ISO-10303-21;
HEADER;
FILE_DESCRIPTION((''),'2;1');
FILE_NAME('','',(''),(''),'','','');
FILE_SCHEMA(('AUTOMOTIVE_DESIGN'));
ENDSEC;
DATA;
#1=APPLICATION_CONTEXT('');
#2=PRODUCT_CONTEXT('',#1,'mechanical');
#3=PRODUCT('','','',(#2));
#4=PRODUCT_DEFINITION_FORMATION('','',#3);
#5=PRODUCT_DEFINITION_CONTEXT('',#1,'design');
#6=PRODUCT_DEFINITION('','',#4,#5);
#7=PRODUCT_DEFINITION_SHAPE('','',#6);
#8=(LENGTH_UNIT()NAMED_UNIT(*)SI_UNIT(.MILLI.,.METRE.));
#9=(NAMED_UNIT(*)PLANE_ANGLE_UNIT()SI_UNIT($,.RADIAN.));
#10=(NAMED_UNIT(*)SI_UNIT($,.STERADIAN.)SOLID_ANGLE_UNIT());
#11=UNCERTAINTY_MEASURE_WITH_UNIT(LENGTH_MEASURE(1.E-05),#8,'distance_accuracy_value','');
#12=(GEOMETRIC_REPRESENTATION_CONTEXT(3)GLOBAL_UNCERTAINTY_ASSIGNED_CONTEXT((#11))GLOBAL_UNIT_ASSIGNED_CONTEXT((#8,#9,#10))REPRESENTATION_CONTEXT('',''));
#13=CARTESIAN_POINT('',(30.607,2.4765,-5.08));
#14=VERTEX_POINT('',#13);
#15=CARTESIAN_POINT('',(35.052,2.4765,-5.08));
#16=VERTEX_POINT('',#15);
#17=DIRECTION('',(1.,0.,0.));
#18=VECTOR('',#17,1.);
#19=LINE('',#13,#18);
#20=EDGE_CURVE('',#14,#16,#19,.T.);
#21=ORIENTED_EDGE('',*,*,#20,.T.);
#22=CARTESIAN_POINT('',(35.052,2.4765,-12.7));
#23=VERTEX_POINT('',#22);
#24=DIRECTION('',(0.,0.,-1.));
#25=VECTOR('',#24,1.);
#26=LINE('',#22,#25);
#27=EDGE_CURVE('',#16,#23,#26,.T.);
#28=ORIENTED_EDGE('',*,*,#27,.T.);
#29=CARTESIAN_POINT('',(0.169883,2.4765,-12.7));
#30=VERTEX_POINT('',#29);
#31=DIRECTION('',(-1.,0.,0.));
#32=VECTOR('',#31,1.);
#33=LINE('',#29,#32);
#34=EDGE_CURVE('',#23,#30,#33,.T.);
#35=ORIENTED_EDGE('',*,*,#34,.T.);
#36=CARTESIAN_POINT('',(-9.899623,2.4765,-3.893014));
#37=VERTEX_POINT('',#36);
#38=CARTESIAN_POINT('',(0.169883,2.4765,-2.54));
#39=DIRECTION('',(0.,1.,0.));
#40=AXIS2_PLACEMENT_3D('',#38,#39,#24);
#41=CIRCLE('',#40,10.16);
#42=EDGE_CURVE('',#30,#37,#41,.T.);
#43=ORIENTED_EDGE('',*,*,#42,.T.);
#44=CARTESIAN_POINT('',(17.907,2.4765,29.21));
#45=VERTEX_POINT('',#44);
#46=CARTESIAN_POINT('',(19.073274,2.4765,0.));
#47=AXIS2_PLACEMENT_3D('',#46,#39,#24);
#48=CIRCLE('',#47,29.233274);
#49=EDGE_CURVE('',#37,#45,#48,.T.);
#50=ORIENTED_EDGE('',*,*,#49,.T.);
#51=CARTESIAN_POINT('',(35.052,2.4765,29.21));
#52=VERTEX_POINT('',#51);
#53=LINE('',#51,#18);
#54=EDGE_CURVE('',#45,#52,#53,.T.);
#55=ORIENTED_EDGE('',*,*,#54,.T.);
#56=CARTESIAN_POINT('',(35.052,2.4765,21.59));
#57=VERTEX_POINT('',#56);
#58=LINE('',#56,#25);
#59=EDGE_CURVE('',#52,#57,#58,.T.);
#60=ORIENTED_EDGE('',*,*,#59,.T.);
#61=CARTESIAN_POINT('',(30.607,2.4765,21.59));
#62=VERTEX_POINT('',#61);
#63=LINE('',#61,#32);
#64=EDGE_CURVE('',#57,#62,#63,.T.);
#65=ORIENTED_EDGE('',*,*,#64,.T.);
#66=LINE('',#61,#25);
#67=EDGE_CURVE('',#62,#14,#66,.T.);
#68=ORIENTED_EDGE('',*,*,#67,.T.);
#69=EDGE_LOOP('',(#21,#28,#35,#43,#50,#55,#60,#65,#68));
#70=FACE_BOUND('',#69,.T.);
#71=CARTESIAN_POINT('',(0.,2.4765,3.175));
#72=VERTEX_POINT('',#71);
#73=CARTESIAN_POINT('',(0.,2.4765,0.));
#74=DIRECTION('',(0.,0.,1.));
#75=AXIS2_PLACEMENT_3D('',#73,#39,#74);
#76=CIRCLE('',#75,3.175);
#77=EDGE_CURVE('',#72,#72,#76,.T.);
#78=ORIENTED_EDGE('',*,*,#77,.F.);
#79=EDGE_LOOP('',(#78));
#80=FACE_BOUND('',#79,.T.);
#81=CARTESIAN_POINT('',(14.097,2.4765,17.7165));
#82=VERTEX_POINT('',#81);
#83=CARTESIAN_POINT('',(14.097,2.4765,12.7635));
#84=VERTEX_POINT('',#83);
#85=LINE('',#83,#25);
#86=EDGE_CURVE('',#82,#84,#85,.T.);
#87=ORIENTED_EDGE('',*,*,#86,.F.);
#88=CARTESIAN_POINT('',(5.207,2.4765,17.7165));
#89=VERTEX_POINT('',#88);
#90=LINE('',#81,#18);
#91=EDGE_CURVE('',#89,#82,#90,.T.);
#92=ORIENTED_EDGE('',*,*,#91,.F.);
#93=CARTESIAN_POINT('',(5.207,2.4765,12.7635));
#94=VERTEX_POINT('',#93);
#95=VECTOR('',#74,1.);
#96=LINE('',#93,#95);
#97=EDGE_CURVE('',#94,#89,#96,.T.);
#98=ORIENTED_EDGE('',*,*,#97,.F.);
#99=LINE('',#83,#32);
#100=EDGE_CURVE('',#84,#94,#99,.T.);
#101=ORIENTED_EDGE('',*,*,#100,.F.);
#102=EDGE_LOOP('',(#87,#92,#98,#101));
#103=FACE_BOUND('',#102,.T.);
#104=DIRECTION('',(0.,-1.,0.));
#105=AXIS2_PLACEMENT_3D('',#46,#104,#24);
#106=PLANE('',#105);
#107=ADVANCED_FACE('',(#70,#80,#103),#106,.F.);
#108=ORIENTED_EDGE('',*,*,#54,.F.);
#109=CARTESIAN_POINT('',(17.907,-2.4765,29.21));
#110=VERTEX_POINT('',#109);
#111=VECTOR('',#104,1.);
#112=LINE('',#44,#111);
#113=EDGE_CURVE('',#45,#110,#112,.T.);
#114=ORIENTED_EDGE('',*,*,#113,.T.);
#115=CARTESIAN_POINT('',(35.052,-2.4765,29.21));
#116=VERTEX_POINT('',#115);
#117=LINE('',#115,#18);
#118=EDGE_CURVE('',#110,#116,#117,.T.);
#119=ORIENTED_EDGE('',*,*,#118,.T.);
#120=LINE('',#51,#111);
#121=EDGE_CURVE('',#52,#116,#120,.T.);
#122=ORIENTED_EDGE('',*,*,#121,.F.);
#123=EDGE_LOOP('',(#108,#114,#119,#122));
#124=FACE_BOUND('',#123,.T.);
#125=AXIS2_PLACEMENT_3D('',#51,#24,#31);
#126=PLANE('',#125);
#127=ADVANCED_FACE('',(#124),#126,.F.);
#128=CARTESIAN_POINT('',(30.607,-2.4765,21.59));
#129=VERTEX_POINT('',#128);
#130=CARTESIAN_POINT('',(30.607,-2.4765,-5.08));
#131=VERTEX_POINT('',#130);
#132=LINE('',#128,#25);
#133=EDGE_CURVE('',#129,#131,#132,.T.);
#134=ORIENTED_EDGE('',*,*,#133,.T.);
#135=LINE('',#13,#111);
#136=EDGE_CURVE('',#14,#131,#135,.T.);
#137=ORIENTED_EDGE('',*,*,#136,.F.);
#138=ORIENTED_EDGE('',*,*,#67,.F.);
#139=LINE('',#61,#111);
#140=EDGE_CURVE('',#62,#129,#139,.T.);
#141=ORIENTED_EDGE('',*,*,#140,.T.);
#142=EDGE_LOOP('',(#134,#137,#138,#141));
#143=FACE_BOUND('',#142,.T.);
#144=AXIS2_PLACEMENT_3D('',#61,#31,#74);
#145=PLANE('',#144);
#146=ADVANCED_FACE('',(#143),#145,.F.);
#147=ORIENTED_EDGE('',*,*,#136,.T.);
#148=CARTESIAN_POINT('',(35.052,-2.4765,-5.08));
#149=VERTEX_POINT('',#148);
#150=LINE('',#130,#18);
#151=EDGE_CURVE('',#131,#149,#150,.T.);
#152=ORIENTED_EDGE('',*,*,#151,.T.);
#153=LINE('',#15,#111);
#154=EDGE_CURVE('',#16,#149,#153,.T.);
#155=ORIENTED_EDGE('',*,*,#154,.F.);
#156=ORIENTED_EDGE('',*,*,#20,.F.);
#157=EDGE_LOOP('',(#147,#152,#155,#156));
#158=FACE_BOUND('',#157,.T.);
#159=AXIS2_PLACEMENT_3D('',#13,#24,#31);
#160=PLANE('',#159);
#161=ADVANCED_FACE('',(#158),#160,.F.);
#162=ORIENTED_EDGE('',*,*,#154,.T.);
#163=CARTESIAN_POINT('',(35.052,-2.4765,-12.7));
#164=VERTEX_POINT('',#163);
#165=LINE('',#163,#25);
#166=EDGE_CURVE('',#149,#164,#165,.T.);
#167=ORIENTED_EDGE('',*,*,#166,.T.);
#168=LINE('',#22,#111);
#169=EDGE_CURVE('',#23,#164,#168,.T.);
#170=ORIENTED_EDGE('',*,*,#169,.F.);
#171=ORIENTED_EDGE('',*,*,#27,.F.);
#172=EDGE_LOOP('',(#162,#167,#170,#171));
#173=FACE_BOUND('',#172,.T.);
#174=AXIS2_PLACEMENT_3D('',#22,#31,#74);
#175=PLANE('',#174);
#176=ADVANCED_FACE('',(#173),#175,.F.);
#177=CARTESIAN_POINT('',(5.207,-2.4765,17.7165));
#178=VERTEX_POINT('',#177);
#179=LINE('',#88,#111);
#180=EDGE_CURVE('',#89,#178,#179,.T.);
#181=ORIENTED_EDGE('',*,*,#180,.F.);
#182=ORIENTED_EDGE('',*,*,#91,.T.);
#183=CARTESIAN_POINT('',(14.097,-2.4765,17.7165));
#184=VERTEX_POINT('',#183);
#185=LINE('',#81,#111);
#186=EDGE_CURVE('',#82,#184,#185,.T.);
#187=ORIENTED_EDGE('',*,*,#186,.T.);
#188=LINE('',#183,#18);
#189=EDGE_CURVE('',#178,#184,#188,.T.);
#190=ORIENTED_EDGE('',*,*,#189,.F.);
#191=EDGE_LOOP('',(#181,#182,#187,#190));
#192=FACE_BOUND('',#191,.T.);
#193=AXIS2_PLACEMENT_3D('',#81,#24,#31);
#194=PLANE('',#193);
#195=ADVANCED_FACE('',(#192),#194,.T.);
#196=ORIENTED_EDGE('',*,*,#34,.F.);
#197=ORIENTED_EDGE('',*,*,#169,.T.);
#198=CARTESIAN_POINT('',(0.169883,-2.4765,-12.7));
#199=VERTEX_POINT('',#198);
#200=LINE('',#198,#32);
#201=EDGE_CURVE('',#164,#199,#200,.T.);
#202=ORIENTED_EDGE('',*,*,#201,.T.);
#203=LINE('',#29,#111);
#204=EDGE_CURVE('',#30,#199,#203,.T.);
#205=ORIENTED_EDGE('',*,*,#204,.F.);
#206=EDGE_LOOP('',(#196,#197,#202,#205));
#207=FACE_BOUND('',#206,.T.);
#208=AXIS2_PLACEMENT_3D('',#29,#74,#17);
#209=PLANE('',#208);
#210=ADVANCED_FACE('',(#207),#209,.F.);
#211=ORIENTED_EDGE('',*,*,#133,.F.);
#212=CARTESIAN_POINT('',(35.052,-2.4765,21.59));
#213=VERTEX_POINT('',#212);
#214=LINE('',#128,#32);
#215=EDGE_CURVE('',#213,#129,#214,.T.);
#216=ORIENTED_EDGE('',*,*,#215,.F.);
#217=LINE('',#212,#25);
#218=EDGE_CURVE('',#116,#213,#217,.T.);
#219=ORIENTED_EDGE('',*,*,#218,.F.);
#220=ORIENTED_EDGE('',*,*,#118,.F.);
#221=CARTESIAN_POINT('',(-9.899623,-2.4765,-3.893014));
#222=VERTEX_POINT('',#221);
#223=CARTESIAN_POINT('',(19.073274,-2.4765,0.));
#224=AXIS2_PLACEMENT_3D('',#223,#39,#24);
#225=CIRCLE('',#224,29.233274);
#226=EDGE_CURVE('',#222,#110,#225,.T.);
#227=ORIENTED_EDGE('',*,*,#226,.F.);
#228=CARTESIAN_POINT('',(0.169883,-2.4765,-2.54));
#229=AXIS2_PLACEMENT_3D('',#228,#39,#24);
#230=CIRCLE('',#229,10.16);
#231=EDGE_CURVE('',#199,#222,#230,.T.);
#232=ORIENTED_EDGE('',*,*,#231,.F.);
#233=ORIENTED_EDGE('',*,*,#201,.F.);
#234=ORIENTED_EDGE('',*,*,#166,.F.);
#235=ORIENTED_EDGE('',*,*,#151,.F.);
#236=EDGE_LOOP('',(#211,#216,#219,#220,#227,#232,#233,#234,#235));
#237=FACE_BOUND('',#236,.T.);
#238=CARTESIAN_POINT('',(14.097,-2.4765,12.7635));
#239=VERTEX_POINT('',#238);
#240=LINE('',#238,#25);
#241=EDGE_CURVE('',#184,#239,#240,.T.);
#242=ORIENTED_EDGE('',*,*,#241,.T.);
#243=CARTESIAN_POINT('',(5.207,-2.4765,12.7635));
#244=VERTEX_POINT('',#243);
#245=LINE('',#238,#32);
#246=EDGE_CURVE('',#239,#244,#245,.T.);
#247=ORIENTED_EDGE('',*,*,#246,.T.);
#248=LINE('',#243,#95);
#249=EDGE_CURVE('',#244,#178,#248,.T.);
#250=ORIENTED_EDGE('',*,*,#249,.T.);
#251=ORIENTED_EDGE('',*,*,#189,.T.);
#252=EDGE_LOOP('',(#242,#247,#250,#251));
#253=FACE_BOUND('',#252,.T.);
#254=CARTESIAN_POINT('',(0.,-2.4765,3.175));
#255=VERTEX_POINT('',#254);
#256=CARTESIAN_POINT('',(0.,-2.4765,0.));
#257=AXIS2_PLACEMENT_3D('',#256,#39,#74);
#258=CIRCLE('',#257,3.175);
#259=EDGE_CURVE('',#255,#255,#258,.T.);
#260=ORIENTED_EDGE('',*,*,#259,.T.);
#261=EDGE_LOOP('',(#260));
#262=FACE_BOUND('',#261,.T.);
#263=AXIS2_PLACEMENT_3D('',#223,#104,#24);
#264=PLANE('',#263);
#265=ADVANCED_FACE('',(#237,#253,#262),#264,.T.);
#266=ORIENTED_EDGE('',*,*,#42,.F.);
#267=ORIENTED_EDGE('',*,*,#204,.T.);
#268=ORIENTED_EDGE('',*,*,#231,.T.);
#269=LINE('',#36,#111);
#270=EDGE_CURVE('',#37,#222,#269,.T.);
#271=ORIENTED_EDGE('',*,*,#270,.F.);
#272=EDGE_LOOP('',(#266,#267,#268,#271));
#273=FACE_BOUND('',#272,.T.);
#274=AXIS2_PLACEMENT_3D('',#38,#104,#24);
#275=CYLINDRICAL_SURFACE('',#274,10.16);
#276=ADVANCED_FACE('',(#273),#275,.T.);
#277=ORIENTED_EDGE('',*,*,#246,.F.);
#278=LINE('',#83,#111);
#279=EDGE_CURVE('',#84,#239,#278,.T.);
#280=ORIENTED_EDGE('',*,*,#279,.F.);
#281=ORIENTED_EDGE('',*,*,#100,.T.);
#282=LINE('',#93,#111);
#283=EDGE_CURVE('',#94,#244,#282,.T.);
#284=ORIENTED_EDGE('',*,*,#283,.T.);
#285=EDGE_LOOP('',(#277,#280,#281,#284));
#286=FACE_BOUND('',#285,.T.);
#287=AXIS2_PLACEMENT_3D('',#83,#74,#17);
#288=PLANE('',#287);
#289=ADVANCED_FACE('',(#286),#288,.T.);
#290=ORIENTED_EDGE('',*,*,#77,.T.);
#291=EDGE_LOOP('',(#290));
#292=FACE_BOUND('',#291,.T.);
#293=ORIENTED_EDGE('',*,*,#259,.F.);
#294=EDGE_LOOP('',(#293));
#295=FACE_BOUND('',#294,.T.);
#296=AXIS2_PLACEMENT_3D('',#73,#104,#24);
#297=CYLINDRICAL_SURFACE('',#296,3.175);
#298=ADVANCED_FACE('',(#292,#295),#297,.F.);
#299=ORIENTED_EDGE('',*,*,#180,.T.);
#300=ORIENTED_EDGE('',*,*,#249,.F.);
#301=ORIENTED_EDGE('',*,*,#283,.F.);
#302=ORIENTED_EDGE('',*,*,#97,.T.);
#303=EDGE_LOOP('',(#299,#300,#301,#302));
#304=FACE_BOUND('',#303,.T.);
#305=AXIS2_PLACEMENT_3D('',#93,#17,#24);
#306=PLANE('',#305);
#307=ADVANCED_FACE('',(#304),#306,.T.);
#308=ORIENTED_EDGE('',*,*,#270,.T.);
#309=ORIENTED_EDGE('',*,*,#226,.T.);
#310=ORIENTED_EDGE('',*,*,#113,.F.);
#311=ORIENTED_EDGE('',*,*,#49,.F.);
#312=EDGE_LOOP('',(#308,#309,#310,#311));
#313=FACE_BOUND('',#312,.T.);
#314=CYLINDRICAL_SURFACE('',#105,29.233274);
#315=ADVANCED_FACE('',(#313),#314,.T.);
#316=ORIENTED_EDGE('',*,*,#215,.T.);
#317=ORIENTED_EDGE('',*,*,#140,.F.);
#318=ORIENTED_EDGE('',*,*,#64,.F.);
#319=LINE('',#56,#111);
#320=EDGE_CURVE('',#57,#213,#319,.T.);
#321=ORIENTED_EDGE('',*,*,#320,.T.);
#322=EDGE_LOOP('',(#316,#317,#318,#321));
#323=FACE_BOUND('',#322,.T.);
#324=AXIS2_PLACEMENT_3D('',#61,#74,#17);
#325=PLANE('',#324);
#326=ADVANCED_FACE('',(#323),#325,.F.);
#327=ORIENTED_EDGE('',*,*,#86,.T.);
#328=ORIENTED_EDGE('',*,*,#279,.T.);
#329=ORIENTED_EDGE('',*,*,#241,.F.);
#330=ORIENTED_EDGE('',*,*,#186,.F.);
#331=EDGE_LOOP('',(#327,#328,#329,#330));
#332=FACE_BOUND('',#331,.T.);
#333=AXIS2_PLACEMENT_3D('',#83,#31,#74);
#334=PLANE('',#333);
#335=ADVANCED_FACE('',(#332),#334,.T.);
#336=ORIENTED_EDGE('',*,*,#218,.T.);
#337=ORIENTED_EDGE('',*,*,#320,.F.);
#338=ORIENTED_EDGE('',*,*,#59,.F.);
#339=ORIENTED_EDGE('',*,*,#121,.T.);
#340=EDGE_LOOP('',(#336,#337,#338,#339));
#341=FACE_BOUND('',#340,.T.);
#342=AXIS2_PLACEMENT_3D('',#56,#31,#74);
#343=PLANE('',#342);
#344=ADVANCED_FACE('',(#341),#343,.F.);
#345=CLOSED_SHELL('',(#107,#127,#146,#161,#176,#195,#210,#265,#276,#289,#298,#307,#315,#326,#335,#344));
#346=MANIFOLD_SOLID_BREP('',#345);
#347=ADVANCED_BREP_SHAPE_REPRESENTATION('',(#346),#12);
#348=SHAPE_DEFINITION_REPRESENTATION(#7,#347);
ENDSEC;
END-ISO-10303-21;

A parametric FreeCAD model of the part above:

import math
import FreeCAD as App
import Part
import Sketcher
Q = App.Units.Quantity


def add_polygon(sketch, points):
    """Adds a closed chain of lines whose ends are joined by coincident constraints."""
    first, n = sketch.GeometryCount, len(points)
    for a, b in zip(points, points[1:] + points[:1]):
        sketch.addGeometry(Part.LineSegment(App.Vector(*a, 0), App.Vector(*b, 0)), False)
    for i in range(n):
        sketch.addConstraint(Sketcher.Constraint("Coincident", first + i, 2, first + (i + 1) % n, 1))

doc = App.newDocument("Part")
params = doc.addObject("Spreadsheet::Sheet", "Params")
for row, (alias, value) in enumerate([
    ("sketch1_radius", "0.4 in"),
    ("sketch1_diameter", "0.25 in"),
    ("sketch1_height", "0.3 in"),
    ("sketch1_width", "0.35 in"),
    ("sketch1_height2", "1.05 in"),
    ("pad1_length", "0.195 in"),
], start=1):
    params.set(f"A{row}", alias)
    params.set(f"B{row}", "=" + value)
    params.setAlias(f"B{row}", alias)

body = doc.addObject("PartDesign::Body", "Body")

sketch1 = body.newObject("Sketcher::SketchObject", "Sketch")
sketch1.AttachmentSupport = (doc.getObject("XZ_Plane"), [""])
sketch1.MapMode = "FlatFace"
sketch1.addGeometry(Part.LineSegment(App.Vector(30.6, 21.6, 0), App.Vector(30.6, -5.1, 0)), False)
sketch1.addGeometry(Part.LineSegment(App.Vector(30.6, -5.1, 0), App.Vector(35.1, -5.1, 0)), False)
sketch1.addGeometry(Part.LineSegment(App.Vector(35.1, -5.1, 0), App.Vector(35.1, -12.7, 0)), False)
sketch1.addGeometry(Part.LineSegment(App.Vector(35.1, -12.7, 0), App.Vector(0.2, -12.7, 0)), False)
sketch1.addGeometry(Part.ArcOfCircle(Part.Circle(App.Vector(0.2, -2.5, 0), App.Vector(0, 0, 1), 10.2), math.radians(-172), math.radians(-90)), False)
sketch1.addGeometry(Part.ArcOfCircle(Part.Circle(App.Vector(19.1, 0, 0), App.Vector(0, 0, 1), 29.2), math.radians(92), math.radians(188)), False)
sketch1.addGeometry(Part.LineSegment(App.Vector(17.9, 29.2, 0), App.Vector(35.1, 29.2, 0)), False)
sketch1.addGeometry(Part.LineSegment(App.Vector(35.1, 29.2, 0), App.Vector(35.1, 21.6, 0)), False)
sketch1.addGeometry(Part.LineSegment(App.Vector(35.1, 21.6, 0), App.Vector(30.6, 21.6, 0)), False)
add_polygon(sketch1, [(14.1, 17.7), (5.2, 17.7), (5.2, 12.8), (14.1, 12.8)])
sketch1.addGeometry(Part.Circle(App.Vector(0, 0, 0), App.Vector(0, 0, 1), 3.2), False)
sketch1.addConstraint([
    Sketcher.Constraint("Coincident", 0, 2, 1, 1),
    Sketcher.Constraint("Coincident", 1, 2, 2, 1),
    Sketcher.Constraint("Coincident", 2, 2, 3, 1),
    Sketcher.Constraint("Tangent", 3, 2, 4, 2),
    Sketcher.Constraint("Tangent", 4, 1, 5, 2),
    Sketcher.Constraint("Coincident", 5, 1, 6, 1),
    Sketcher.Constraint("Coincident", 6, 2, 7, 1),
    Sketcher.Constraint("Coincident", 7, 2, 8, 1),
    Sketcher.Constraint("Coincident", 8, 2, 0, 1),
    Sketcher.Constraint("Vertical", 0),
    Sketcher.Constraint("Horizontal", 1),
    Sketcher.Constraint("Vertical", 2),
    Sketcher.Constraint("Horizontal", 3),
    Sketcher.Constraint("Horizontal", 6),
    Sketcher.Constraint("Vertical", 7),
    Sketcher.Constraint("Horizontal", 8),
    Sketcher.Constraint("Horizontal", 9),
    Sketcher.Constraint("Vertical", 10),
    Sketcher.Constraint("Horizontal", 11),
    Sketcher.Constraint("Vertical", 12),
    Sketcher.Constraint("Coincident", 13, 3, -1, 1),
    Sketcher.Constraint("PointOnObject", 5, 3, -1),
    Sketcher.Constraint("Vertical", 2, 2, 6, 2),
    Sketcher.Constraint("Equal", 2, 7),
    Sketcher.Constraint("Radius", 4, Q("0.4 in")),
    Sketcher.Constraint("Diameter", 13, Q("0.25 in")),
    Sketcher.Constraint("DistanceY", 2, 2, 2, 1, Q("0.3 in")),
    Sketcher.Constraint("DistanceX", 9, 2, 8, 2, Q("1 in")),
    Sketcher.Constraint("DistanceX", 9, 2, 9, 1, Q("0.35 in")),
    Sketcher.Constraint("DistanceY", 0, 2, 0, 1, Q("1.05 in")),
    Sketcher.Constraint("DistanceY", 4, 3, -1, 1, Q("0.1 in")),
    Sketcher.Constraint("DistanceX", 5, 1, 0, 2, Q("0.5 in")),
    Sketcher.Constraint("DistanceX", 1, 1, 1, 2, Q("0.175 in")),
    Sketcher.Constraint("DistanceY", 10, 2, 10, 1, Q("0.195 in")),
    Sketcher.Constraint("DistanceX", -1, 1, 1, 2, Q("1.38 in")),
    Sketcher.Constraint("DistanceY", -1, 1, 9, 2, Q("0.6975 in")),
    Sketcher.Constraint("Radius", 5, 29.233274),
])
sketch1.setExpression("Constraints[28]", "Params.sketch1_radius")
sketch1.setExpression("Constraints[29]", "Params.sketch1_diameter")
sketch1.setExpression("Constraints[30]", "Params.sketch1_height")
sketch1.setExpression("Constraints[32]", "Params.sketch1_width")
sketch1.setExpression("Constraints[33]", "Params.sketch1_height2")
pad1 = body.newObject("PartDesign::Pad", "Pad")
pad1.Profile = sketch1
pad1.setExpression("Length", "Params.pad1_length")
pad1.Midplane = True

doc.recompute()
